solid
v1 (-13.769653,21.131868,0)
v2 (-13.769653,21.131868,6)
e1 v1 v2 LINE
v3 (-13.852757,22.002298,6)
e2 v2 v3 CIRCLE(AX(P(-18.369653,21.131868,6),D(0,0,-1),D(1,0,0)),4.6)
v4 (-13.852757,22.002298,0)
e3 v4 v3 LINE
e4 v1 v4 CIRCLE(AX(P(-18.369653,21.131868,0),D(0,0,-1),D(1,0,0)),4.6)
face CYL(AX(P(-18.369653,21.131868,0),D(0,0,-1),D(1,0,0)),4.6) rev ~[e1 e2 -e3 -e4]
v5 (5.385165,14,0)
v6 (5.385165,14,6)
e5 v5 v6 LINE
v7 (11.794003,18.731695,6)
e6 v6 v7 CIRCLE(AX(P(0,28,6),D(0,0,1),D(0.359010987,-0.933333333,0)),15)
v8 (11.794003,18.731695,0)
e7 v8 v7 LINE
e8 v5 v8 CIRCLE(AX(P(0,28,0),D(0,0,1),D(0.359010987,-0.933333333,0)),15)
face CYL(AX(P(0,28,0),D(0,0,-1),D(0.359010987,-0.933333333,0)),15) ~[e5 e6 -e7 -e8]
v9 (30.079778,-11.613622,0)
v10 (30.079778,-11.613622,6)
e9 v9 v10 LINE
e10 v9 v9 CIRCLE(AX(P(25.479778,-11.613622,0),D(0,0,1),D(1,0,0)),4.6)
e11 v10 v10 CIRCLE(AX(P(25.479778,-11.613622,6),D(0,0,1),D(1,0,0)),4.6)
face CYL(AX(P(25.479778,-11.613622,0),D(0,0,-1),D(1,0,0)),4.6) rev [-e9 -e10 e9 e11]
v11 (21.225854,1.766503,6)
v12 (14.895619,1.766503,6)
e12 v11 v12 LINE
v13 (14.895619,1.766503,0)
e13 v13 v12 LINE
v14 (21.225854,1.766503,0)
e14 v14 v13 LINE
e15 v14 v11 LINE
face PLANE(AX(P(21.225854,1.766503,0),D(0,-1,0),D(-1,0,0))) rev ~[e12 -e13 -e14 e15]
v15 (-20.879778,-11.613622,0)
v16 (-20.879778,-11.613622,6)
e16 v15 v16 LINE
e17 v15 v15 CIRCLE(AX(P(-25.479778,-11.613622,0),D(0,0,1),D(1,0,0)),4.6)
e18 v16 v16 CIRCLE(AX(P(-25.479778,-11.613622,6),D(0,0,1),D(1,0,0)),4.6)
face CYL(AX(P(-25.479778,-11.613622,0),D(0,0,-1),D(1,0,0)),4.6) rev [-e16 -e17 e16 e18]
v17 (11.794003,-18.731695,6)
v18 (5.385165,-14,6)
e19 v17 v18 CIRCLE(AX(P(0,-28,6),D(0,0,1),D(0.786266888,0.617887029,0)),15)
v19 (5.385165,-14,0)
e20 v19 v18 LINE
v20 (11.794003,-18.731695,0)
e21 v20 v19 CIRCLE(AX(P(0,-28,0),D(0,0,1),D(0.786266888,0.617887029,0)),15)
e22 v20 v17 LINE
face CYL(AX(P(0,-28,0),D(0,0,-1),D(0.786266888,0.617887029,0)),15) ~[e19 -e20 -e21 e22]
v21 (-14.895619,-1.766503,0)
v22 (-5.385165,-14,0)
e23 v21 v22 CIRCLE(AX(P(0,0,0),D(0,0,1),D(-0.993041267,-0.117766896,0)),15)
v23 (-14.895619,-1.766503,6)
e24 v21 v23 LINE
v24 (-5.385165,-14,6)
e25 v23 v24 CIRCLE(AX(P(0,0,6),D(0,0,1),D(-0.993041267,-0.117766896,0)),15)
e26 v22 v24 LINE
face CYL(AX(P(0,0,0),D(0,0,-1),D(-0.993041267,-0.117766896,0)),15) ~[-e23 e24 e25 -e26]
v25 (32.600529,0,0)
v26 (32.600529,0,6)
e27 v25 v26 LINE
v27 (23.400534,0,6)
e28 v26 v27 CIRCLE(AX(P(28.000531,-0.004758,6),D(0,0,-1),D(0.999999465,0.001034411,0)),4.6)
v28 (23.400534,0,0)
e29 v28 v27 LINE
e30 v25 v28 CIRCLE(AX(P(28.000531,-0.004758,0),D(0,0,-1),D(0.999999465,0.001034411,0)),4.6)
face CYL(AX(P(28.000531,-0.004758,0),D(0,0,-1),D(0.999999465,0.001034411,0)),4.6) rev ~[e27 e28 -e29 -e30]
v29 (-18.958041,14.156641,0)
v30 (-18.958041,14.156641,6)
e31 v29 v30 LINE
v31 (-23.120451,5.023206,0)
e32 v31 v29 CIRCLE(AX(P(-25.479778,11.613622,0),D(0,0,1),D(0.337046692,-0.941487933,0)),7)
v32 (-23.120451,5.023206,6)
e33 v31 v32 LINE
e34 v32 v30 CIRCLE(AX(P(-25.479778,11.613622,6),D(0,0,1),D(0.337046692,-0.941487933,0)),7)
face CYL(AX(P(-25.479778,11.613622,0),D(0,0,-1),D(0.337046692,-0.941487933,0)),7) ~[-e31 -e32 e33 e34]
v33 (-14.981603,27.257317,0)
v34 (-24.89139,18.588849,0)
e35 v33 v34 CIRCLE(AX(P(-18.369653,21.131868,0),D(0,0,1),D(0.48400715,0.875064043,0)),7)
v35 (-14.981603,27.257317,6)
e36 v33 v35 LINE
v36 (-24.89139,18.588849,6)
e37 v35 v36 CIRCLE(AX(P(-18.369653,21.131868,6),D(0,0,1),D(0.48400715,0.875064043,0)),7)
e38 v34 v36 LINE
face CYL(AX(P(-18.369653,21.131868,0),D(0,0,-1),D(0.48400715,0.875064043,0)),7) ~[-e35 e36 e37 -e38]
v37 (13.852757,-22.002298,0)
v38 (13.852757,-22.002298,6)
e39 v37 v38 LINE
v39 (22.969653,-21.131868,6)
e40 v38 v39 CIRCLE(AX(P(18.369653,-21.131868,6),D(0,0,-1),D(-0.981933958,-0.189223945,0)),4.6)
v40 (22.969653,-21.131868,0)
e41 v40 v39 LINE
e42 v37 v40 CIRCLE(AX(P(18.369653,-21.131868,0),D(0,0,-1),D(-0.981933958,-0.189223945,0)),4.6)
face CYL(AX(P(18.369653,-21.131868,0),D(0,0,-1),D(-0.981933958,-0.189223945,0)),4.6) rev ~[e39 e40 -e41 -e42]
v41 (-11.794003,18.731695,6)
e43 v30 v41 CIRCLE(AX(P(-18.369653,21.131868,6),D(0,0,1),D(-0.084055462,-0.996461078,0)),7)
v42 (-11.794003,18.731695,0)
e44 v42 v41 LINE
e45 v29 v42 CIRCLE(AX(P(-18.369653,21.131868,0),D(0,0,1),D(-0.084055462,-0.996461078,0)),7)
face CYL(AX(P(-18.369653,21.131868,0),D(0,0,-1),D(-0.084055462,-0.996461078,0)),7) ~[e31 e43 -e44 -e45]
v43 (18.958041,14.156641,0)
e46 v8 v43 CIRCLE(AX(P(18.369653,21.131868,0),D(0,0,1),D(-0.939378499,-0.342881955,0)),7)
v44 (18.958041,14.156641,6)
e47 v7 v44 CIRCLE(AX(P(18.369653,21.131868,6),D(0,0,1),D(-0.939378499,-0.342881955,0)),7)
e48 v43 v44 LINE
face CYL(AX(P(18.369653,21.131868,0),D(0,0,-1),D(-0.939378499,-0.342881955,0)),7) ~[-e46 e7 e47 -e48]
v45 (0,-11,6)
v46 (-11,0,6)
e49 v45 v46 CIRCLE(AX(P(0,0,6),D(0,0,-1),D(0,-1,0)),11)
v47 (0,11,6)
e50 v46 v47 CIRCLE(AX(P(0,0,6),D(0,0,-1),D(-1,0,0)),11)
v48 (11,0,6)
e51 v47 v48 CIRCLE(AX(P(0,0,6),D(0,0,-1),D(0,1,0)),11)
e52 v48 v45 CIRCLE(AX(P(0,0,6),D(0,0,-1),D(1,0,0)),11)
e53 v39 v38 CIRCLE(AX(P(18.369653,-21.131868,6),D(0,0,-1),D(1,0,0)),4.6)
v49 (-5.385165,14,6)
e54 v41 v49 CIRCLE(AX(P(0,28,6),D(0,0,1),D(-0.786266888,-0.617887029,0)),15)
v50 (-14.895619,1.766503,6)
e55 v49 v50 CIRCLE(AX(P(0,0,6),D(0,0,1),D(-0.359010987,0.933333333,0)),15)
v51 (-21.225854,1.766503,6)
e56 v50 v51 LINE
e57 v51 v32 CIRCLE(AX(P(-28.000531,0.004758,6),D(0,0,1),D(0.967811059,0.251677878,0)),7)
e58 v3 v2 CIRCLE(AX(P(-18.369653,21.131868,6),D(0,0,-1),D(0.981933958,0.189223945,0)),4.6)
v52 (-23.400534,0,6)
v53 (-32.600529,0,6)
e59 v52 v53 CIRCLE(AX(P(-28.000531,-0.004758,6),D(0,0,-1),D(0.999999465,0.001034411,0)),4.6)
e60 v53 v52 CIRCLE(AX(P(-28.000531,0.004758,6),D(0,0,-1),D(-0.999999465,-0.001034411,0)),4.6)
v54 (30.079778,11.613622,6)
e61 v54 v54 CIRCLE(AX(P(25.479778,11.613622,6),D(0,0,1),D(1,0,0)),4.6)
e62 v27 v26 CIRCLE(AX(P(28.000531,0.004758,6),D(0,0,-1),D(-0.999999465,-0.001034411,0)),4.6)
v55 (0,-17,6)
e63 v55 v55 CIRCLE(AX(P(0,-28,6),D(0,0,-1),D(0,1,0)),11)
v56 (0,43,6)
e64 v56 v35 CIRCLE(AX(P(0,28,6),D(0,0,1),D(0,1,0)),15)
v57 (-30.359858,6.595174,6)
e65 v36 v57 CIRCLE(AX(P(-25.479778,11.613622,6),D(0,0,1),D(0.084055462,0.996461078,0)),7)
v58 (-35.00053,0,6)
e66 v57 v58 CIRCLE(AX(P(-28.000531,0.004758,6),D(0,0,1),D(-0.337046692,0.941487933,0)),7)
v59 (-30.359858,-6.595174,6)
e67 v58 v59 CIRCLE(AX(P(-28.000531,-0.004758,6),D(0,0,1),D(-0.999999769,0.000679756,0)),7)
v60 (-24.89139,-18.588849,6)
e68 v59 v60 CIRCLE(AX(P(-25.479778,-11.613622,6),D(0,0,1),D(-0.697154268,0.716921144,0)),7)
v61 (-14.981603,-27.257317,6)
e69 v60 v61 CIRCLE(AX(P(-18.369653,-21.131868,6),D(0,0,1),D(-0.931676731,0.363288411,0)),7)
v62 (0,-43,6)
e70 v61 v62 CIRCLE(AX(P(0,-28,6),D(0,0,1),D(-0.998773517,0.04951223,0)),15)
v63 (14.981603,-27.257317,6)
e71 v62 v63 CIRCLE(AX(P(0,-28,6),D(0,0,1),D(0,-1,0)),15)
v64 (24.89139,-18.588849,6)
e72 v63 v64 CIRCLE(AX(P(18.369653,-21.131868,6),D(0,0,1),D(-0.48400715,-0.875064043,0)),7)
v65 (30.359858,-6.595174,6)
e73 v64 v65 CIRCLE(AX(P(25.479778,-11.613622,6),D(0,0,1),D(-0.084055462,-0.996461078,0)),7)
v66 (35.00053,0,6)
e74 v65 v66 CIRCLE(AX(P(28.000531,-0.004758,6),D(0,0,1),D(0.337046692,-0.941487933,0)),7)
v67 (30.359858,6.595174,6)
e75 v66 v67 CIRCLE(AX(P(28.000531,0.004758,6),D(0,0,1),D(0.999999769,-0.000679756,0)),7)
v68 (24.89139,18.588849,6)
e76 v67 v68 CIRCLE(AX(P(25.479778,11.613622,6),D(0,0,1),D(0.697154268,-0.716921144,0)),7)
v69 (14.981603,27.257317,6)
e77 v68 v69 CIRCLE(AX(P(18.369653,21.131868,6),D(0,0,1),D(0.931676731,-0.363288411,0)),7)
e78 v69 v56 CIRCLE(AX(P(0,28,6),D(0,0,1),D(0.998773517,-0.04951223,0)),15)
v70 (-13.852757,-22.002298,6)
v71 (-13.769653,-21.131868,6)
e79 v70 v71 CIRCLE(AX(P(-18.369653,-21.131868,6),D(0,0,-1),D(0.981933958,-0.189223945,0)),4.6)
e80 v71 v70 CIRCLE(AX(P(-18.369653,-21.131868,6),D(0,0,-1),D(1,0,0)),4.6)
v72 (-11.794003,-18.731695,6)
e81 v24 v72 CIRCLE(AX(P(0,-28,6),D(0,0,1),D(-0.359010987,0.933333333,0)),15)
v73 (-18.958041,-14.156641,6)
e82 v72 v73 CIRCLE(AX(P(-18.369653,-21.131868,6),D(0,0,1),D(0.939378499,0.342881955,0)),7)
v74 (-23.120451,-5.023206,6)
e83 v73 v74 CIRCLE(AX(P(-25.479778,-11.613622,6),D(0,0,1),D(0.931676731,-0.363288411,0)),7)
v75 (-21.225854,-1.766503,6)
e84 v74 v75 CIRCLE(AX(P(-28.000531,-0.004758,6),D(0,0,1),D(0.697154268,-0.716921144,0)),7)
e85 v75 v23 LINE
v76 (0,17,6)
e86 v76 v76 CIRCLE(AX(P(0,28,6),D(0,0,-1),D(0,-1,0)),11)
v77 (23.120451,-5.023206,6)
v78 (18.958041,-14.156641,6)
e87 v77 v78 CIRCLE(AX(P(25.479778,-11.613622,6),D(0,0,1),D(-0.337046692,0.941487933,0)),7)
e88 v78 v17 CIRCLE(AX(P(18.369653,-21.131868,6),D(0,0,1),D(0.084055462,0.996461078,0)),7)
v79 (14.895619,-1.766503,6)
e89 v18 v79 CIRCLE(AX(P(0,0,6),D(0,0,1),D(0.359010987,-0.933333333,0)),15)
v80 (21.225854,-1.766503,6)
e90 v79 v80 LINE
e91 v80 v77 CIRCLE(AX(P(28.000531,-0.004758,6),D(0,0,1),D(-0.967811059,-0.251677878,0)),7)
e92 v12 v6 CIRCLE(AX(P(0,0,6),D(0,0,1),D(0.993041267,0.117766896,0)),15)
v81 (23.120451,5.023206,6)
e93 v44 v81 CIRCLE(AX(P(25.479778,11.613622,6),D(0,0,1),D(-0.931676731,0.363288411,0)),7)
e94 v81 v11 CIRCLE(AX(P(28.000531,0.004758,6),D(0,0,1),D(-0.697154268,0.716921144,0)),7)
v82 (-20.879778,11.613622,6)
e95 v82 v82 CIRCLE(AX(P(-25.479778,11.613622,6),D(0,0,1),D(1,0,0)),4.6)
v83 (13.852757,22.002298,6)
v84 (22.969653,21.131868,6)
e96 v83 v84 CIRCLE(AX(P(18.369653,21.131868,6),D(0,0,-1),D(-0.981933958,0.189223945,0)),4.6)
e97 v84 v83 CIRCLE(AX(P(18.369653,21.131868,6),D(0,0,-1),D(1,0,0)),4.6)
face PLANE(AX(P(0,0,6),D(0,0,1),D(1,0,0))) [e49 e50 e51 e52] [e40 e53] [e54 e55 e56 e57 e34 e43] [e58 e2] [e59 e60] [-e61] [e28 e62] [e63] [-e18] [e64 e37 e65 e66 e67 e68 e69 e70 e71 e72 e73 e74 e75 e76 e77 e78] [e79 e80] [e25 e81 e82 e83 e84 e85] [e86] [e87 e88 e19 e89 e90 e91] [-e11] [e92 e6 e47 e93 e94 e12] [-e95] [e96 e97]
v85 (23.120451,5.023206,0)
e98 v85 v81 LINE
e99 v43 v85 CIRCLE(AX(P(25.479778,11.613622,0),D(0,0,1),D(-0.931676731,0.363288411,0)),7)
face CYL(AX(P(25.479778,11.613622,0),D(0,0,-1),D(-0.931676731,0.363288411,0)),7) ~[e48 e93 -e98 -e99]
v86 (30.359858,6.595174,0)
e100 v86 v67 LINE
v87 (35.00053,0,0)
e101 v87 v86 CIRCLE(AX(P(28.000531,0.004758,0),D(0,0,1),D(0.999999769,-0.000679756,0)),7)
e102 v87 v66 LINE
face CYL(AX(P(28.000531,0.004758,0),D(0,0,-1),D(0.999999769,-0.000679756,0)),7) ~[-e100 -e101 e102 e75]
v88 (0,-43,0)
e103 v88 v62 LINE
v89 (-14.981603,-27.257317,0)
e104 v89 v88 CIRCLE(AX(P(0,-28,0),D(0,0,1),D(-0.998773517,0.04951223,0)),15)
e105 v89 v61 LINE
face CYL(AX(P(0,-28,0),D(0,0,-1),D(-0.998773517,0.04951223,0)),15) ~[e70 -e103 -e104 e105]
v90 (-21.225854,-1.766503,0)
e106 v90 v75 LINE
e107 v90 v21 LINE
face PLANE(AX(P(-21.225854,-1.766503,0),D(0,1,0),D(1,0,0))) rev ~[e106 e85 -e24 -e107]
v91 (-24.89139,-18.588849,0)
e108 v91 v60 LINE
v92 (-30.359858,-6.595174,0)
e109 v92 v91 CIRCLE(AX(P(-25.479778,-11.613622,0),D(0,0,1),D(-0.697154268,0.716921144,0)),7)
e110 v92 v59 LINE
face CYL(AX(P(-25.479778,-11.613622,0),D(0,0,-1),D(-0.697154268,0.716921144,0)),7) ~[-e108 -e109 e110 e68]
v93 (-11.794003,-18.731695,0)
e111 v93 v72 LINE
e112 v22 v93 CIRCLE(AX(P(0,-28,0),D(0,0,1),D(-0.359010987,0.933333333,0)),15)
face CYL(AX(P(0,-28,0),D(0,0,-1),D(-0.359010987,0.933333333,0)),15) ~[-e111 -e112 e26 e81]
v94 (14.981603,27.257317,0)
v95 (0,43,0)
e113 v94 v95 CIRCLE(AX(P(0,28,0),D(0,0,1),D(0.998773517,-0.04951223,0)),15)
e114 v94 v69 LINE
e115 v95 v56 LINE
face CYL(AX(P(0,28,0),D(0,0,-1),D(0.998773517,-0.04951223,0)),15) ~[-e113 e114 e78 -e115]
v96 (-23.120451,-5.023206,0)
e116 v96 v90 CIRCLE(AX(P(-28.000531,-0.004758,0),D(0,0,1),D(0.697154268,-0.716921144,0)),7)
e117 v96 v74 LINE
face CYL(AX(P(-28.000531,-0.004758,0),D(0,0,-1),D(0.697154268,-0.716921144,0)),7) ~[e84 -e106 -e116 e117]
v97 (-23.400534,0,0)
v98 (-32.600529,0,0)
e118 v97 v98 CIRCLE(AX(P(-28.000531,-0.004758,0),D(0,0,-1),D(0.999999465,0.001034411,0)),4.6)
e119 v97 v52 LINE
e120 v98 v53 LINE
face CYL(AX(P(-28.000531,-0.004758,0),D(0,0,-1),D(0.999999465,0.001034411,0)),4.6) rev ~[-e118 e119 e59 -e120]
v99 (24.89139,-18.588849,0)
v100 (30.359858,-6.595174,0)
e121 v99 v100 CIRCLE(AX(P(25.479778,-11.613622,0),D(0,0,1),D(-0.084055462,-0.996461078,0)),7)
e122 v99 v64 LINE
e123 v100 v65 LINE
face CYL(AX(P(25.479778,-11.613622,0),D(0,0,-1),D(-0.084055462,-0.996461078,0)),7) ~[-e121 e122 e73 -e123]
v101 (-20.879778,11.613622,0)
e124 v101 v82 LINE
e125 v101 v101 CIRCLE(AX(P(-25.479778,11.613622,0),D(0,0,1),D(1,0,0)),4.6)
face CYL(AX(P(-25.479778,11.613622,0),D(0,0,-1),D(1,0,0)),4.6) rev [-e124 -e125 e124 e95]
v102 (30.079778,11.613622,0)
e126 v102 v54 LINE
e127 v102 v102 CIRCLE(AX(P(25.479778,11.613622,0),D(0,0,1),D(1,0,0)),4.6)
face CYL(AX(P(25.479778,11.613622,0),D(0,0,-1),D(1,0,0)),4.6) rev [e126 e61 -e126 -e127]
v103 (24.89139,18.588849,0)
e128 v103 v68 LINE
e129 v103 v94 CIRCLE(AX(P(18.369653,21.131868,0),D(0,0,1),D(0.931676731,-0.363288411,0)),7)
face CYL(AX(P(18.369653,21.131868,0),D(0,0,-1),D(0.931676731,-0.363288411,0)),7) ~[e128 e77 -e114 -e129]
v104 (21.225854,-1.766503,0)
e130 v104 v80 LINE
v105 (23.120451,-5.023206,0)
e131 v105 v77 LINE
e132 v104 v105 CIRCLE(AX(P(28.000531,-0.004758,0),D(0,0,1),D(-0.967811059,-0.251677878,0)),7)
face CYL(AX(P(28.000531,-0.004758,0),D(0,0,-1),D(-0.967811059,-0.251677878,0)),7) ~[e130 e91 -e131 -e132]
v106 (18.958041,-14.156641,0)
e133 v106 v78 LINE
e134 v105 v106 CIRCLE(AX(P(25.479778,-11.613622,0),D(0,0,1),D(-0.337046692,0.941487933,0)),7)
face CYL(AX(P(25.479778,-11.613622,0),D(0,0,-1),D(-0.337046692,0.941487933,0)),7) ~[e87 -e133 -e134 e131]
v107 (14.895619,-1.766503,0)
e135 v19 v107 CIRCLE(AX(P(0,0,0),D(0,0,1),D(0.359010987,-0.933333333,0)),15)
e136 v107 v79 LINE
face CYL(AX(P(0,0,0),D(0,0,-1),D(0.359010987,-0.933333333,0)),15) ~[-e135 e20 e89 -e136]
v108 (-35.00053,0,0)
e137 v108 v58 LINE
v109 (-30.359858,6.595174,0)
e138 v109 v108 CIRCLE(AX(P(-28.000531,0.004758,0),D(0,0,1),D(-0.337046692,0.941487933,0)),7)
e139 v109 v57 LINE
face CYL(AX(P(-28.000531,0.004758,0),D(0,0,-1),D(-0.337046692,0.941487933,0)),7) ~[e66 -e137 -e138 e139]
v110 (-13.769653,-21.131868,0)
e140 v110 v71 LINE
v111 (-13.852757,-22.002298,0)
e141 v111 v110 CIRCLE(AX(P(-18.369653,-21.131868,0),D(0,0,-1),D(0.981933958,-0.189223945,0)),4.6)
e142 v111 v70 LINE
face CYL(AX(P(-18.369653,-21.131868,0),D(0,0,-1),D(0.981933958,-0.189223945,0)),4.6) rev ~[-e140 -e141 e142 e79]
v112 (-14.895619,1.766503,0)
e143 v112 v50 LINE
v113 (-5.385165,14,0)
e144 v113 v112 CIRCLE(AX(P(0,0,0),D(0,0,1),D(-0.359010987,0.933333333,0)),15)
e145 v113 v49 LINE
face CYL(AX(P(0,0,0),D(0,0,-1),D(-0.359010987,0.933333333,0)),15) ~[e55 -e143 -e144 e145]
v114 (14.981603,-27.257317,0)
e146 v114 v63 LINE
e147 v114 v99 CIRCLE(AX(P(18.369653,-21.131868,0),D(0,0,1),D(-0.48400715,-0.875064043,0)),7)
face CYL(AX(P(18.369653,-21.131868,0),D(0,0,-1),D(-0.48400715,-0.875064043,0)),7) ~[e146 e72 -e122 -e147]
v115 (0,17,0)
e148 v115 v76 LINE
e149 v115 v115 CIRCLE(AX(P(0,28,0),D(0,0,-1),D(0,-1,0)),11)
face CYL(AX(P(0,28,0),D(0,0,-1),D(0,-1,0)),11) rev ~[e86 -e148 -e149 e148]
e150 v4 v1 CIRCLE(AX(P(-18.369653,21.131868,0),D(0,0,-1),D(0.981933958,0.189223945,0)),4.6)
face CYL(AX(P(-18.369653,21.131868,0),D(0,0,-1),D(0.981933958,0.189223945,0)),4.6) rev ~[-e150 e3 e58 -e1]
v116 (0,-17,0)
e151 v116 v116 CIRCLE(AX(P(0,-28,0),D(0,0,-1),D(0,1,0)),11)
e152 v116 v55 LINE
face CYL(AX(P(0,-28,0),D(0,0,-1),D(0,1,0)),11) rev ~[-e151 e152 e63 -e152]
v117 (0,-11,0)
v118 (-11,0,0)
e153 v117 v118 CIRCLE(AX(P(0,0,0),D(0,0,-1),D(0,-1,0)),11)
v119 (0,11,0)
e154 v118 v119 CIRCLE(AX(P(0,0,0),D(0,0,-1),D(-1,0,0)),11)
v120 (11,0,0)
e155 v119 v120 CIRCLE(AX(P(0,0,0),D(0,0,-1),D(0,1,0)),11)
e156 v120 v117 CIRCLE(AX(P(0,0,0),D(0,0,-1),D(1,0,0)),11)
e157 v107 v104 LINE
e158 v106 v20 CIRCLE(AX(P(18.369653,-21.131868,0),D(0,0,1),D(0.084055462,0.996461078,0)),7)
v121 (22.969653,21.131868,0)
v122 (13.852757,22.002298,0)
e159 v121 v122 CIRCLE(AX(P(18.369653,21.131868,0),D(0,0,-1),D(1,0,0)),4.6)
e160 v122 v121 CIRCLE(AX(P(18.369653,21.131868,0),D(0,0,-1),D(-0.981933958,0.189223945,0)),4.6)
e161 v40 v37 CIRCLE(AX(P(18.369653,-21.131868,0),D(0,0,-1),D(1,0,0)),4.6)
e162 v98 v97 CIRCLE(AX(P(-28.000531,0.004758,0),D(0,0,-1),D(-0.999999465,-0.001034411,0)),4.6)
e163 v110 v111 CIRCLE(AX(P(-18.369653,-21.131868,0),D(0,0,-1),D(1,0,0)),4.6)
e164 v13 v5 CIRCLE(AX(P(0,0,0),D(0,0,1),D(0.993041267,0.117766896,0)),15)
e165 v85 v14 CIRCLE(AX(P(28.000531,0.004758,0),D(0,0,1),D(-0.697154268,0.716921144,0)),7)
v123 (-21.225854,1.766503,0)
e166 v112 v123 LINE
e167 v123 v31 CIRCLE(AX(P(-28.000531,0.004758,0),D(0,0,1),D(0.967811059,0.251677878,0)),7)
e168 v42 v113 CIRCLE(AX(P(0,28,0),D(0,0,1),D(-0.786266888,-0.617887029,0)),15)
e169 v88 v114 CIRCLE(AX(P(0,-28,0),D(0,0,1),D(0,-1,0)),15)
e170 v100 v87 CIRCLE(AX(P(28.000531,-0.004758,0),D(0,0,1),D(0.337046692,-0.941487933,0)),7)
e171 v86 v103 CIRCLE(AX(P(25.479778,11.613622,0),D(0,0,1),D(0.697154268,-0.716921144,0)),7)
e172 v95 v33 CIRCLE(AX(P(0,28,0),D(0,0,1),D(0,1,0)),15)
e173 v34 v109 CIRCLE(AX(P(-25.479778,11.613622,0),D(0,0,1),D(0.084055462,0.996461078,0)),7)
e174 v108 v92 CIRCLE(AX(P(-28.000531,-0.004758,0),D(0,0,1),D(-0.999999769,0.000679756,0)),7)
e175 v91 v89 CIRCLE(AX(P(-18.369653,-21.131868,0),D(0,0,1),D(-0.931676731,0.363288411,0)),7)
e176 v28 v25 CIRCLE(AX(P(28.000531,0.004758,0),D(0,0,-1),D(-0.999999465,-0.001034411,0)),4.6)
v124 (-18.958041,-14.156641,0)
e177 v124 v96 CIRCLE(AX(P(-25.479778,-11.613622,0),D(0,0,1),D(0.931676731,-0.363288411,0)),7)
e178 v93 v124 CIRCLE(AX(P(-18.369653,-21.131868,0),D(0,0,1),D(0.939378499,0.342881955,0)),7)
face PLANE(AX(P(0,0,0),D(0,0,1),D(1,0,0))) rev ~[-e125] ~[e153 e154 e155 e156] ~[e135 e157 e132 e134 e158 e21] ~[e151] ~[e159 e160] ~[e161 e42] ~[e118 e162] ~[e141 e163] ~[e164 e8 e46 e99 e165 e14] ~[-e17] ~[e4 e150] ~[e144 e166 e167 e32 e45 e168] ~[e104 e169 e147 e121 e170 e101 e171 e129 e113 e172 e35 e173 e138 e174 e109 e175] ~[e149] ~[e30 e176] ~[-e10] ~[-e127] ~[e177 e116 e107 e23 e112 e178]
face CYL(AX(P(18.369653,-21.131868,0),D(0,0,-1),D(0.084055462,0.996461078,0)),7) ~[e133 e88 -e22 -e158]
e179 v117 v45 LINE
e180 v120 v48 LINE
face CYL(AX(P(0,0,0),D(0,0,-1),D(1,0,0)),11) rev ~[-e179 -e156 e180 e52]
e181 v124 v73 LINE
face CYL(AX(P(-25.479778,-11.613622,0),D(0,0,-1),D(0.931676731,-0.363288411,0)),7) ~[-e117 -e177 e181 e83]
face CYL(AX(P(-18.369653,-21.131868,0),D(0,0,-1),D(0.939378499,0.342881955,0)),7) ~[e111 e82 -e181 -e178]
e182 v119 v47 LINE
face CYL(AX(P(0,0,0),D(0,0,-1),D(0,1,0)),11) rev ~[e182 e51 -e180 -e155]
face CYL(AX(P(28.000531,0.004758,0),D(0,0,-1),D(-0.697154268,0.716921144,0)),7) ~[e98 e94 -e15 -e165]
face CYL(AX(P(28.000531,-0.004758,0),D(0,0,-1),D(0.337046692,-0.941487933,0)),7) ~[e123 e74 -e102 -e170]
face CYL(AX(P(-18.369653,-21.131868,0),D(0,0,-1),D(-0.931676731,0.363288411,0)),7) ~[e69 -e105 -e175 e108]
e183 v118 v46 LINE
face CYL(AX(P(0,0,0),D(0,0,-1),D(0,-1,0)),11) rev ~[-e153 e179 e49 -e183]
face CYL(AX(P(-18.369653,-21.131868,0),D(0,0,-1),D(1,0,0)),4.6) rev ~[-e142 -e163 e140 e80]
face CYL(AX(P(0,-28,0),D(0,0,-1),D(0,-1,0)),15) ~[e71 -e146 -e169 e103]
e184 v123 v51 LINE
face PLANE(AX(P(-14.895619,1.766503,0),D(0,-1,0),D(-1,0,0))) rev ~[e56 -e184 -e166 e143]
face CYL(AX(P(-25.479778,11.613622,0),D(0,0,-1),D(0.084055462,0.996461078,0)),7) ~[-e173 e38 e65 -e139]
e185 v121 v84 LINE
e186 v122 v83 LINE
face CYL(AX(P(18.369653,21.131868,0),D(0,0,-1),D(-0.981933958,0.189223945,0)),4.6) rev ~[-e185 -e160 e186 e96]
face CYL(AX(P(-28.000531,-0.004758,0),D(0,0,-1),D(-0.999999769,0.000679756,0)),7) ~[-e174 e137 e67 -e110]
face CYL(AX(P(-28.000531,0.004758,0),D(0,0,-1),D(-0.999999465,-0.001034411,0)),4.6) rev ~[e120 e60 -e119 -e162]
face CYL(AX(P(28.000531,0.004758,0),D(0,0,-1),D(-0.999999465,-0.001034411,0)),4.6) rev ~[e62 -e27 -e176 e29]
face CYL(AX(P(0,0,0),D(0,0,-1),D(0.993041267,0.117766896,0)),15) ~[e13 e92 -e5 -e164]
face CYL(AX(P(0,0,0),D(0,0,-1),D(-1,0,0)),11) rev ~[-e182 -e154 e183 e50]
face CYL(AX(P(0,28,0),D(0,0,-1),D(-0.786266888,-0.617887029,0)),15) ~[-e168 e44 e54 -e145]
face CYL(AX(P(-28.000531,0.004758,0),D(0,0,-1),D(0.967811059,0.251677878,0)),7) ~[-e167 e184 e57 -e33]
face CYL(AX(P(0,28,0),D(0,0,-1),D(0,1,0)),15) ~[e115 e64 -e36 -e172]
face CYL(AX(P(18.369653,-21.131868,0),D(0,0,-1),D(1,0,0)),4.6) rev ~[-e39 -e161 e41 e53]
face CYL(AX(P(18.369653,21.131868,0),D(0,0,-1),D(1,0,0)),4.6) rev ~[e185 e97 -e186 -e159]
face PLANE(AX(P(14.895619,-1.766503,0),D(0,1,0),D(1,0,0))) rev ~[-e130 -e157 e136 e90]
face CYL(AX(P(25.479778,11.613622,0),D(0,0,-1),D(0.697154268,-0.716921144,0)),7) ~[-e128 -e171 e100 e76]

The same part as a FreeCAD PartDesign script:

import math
import FreeCAD as App
import Part
import Sketcher

V = App.Vector

doc = App.newDocument("Part")
body = doc.addObject("PartDesign::Body", "Body")

# Sketch on XY plane
sketch1 = body.newObject("Sketcher::SketchObject", "Sketch")
sketch1.AttachmentSupport = (doc.getObject("XY_Plane"), [""])
sketch1.MapMode = "FlatFace"
sketch1.addGeometry(Part.ArcOfCircle(Part.Circle(V(25.479778, 11.613622, 0), V(0, 0, 1), 7), math.radians(-45.800866), math.radians(94.821712)), False)
sketch1.addGeometry(Part.ArcOfCircle(Part.Circle(V(18.369653, 21.131868, 0), V(0, 0, 1), 7), math.radians(-21.302286), math.radians(118.947444)), False)
sketch1.addGeometry(Part.ArcOfCircle(Part.Circle(V(0, 28, 0), V(0, 0, 1), 15), math.radians(-2.838002), math.radians(90)), False)
sketch1.addGeometry(Part.ArcOfCircle(Part.Circle(V(0, 28, 0), V(0, 0, 1), 15), math.radians(90), math.radians(182.838002)), False)
sketch1.addGeometry(Part.ArcOfCircle(Part.Circle(V(-18.369653, 21.131868, 0), V(0, 0, 1), 7), math.radians(61.052556), math.radians(201.302286)), False)
sketch1.addGeometry(Part.ArcOfCircle(Part.Circle(V(-25.479778, 11.613622, 0), V(0, 0, 1), 7), math.radians(85.178288), math.radians(225.800866)), False)
sketch1.addGeometry(Part.ArcOfCircle(Part.Circle(V(-28.000531, 0.004758, 0), V(0, 0, 1), 7), math.radians(109.697044), math.radians(180.038947)), False)
sketch1.addGeometry(Part.ArcOfCircle(Part.Circle(V(-28.000531, -0.004758, 0), V(0, 0, 1), 7), math.radians(179.961053), math.radians(250.302956)), False)
sketch1.addGeometry(Part.ArcOfCircle(Part.Circle(V(-25.479778, -11.613622, 0), V(0, 0, 1), 7), math.radians(134.199134), math.radians(274.821712)), False)
sketch1.addGeometry(Part.ArcOfCircle(Part.Circle(V(-18.369653, -21.131868, 0), V(0, 0, 1), 7), math.radians(158.697714), math.radians(298.947444)), False)
sketch1.addGeometry(Part.ArcOfCircle(Part.Circle(V(0, -28, 0), V(0, 0, 1), 15), math.radians(177.161998), math.radians(270)), False)
sketch1.addGeometry(Part.ArcOfCircle(Part.Circle(V(0, -28, 0), V(0, 0, 1), 15), math.radians(-90), math.radians(2.838002)), False)
sketch1.addGeometry(Part.ArcOfCircle(Part.Circle(V(18.369653, -21.131868, 0), V(0, 0, 1), 7), math.radians(-118.947444), math.radians(21.302286)), False)
sketch1.addGeometry(Part.ArcOfCircle(Part.Circle(V(25.479778, -11.613622, 0), V(0, 0, 1), 7), math.radians(-94.821712), math.radians(45.800866)), False)
sketch1.addGeometry(Part.ArcOfCircle(Part.Circle(V(28.000531, -0.004758, 0), V(0, 0, 1), 7), math.radians(-70.302956), math.radians(0.038947)), False)
sketch1.addGeometry(Part.ArcOfCircle(Part.Circle(V(28.000531, 0.004758, 0), V(0, 0, 1), 7), math.radians(-0.038947), math.radians(70.302956)), False)
sketch1.addGeometry(Part.ArcOfCircle(Part.Circle(V(-18.369653, -21.131868, 0), V(0, 0, 1), 4.6), math.radians(-10.907498), math.radians(0)), False)
sketch1.addGeometry(Part.ArcOfCircle(Part.Circle(V(-18.369653, -21.131868, 0), V(0, 0, 1), 4.6), math.radians(0), math.radians(349.092502)), False)
sketch1.addGeometry(Part.Circle(V(-25.479778, -11.613622, 0), V(0, 0, 1), 4.6), False)
sketch1.addGeometry(Part.ArcOfCircle(Part.Circle(V(0, -28, 0), V(0, 0, 1), 15), math.radians(111.03947), math.radians(141.838002)), False)
sketch1.addGeometry(Part.ArcOfCircle(Part.Circle(V(-18.369653, -21.131868, 0), V(0, 0, 1), 7), math.radians(20.052556), math.radians(94.821712)), False)
sketch1.addGeometry(Part.ArcOfCircle(Part.Circle(V(-25.479778, -11.613622, 0), V(0, 0, 1), 7), math.radians(-21.302287), math.radians(70.302956)), False)
sketch1.addGeometry(Part.ArcOfCircle(Part.Circle(V(-28.000531, -0.004758, 0), V(0, 0, 1), 7), math.radians(-45.800866), math.radians(-14.576823)), False)
sketch1.addGeometry(Part.LineSegment(V(-21.225854, -1.766503, 0), V(-14.895619, -1.766503, 0)), False)
sketch1.addGeometry(Part.ArcOfCircle(Part.Circle(V(0, 0, 0), V(0, 0, 1), 15), math.radians(-173.236759), math.radians(-111.03947)), False)
sketch1.addGeometry(Part.Circle(V(0, -28, 0), V(0, 0, 1), 11), False)
sketch1.addGeometry(Part.ArcOfCircle(Part.Circle(V(18.369653, -21.131868, 0), V(0, 0, 1), 4.6), math.radians(-169.092502), math.radians(0)), False)
sketch1.addGeometry(Part.ArcOfCircle(Part.Circle(V(18.369653, -21.131868, 0), V(0, 0, 1), 4.6), math.radians(0), math.radians(190.907498)), False)
sketch1.addGeometry(Part.ArcOfCircle(Part.Circle(V(28.000531, -0.004758, 0), V(0, 0, 1), 7), math.radians(-165.423177), math.radians(-134.199134)), False)
sketch1.addGeometry(Part.ArcOfCircle(Part.Circle(V(25.479778, -11.613622, 0), V(0, 0, 1), 7), math.radians(109.697044), math.radians(201.302287)), False)
sketch1.addGeometry(Part.ArcOfCircle(Part.Circle(V(18.369653, -21.131868, 0), V(0, 0, 1), 7), math.radians(85.178288), math.radians(159.947444)), False)
sketch1.addGeometry(Part.ArcOfCircle(Part.Circle(V(0, -28, 0), V(0, 0, 1), 15), math.radians(38.161998), math.radians(68.96053)), False)
sketch1.addGeometry(Part.ArcOfCircle(Part.Circle(V(0, 0, 0), V(0, 0, 1), 15), math.radians(-68.96053), math.radians(-6.763241)), False)
sketch1.addGeometry(Part.LineSegment(V(14.895619, -1.766503, 0), V(21.225854, -1.766503, 0)), False)
sketch1.addGeometry(Part.Circle(V(25.479778, -11.613622, 0), V(0, 0, 1), 4.6), False)
sketch1.addGeometry(Part.ArcOfCircle(Part.Circle(V(-28.000531, 0.004758, 0), V(0, 0, 1), 4.6), math.radians(-0.059267), math.radians(180.059267)), False)
sketch1.addGeometry(Part.ArcOfCircle(Part.Circle(V(-28.000531, -0.004758, 0), V(0, 0, 1), 4.6), math.radians(179.940733), math.radians(360.059267)), False)
sketch1.addGeometry(Part.Circle(V(-25.479778, 11.613622, 0), V(0, 0, 1), 4.6), False)
sketch1.addGeometry(Part.ArcOfCircle(Part.Circle(V(-18.369653, 21.131868, 0), V(0, 0, 1), 7), math.radians(-94.821712), math.radians(-20.052556)), False)
sketch1.addGeometry(Part.ArcOfCircle(Part.Circle(V(0, 28, 0), V(0, 0, 1), 15), math.radians(-141.838002), math.radians(-111.03947)), False)
sketch1.addGeometry(Part.ArcOfCircle(Part.Circle(V(0, 0, 0), V(0, 0, 1), 15), math.radians(111.03947), math.radians(173.236759)), False)
sketch1.addGeometry(Part.LineSegment(V(-14.895619, 1.766503, 0), V(-21.225854, 1.766503, 0)), False)
sketch1.addGeometry(Part.ArcOfCircle(Part.Circle(V(-28.000531, 0.004758, 0), V(0, 0, 1), 7), math.radians(14.576823), math.radians(45.800866)), False)
sketch1.addGeometry(Part.ArcOfCircle(Part.Circle(V(-25.479778, 11.613622, 0), V(0, 0, 1), 7), math.radians(-70.302956), math.radians(21.302287)), False)
sketch1.addGeometry(Part.ArcOfCircle(Part.Circle(V(-18.369653, 21.131868, 0), V(0, 0, 1), 4.6), math.radians(10.907498), math.radians(360)), False)
sketch1.addGeometry(Part.ArcOfCircle(Part.Circle(V(-18.369653, 21.131868, 0), V(0, 0, 1), 4.6), math.radians(0), math.radians(10.907498)), False)
sketch1.addGeometry(Part.ArcOfCircle(Part.Circle(V(0, 0, 0), V(0, 0, 1), 11), math.radians(90), math.radians(180)), False)
sketch1.addGeometry(Part.ArcOfCircle(Part.Circle(V(0, 0, 0), V(0, 0, 1), 11), math.radians(0), math.radians(90)), False)
sketch1.addGeometry(Part.ArcOfCircle(Part.Circle(V(0, 0, 0), V(0, 0, 1), 11), math.radians(-90), math.radians(0)), False)
sketch1.addGeometry(Part.ArcOfCircle(Part.Circle(V(0, 0, 0), V(0, 0, 1), 11), math.radians(180), math.radians(270)), False)
sketch1.addGeometry(Part.ArcOfCircle(Part.Circle(V(28.000531, 0.004758, 0), V(0, 0, 1), 7), math.radians(134.199134), math.radians(165.423177)), False)
sketch1.addGeometry(Part.LineSegment(V(21.225854, 1.766503, 0), V(14.895619, 1.766503, 0)), False)
sketch1.addGeometry(Part.ArcOfCircle(Part.Circle(V(0, 0, 0), V(0, 0, 1), 15), math.radians(6.763241), math.radians(68.96053)), False)
sketch1.addGeometry(Part.ArcOfCircle(Part.Circle(V(0, 28, 0), V(0, 0, 1), 15), math.radians(-68.96053), math.radians(-38.161998)), False)
sketch1.addGeometry(Part.ArcOfCircle(Part.Circle(V(18.369653, 21.131868, 0), V(0, 0, 1), 7), math.radians(-159.947444), math.radians(-85.178288)), False)
sketch1.addGeometry(Part.ArcOfCircle(Part.Circle(V(25.479778, 11.613622, 0), V(0, 0, 1), 7), math.radians(158.697713), math.radians(250.302956)), False)
sketch1.addGeometry(Part.ArcOfCircle(Part.Circle(V(28.000531, -0.004758, 0), V(0, 0, 1), 4.6), math.radians(179.940733), math.radians(360.059267)), False)
sketch1.addGeometry(Part.ArcOfCircle(Part.Circle(V(28.000531, 0.004758, 0), V(0, 0, 1), 4.6), math.radians(-0.059267), math.radians(180.059267)), False)
sketch1.addGeometry(Part.Circle(V(25.479778, 11.613622, 0), V(0, 0, 1), 4.6), False)
sketch1.addGeometry(Part.Circle(V(0, 28, 0), V(0, 0, 1), 11), False)
sketch1.addGeometry(Part.ArcOfCircle(Part.Circle(V(18.369653, 21.131868, 0), V(0, 0, 1), 4.6), math.radians(169.092502), math.radians(360)), False)
sketch1.addGeometry(Part.ArcOfCircle(Part.Circle(V(18.369653, 21.131868, 0), V(0, 0, 1), 4.6), math.radians(0), math.radians(169.092502)), False)
sketch1.addConstraint(Sketcher.Constraint("Coincident", 0, 2, 1, 1))
sketch1.addConstraint(Sketcher.Constraint("Coincident", 1, 2, 2, 1))
sketch1.addConstraint(Sketcher.Constraint("Tangent", 2, 2, 3, 1))
sketch1.addConstraint(Sketcher.Constraint("Coincident", 3, 2, 4, 1))
sketch1.addConstraint(Sketcher.Constraint("Coincident", 4, 2, 5, 1))
sketch1.addConstraint(Sketcher.Constraint("Coincident", 5, 2, 6, 1))
sketch1.addConstraint(Sketcher.Constraint("Coincident", 6, 2, 7, 1))
sketch1.addConstraint(Sketcher.Constraint("Coincident", 7, 2, 8, 1))
sketch1.addConstraint(Sketcher.Constraint("Coincident", 8, 2, 9, 1))
sketch1.addConstraint(Sketcher.Constraint("Coincident", 9, 2, 10, 1))
sketch1.addConstraint(Sketcher.Constraint("Tangent", 10, 2, 11, 1))
sketch1.addConstraint(Sketcher.Constraint("Coincident", 11, 2, 12, 1))
sketch1.addConstraint(Sketcher.Constraint("Coincident", 12, 2, 13, 1))
sketch1.addConstraint(Sketcher.Constraint("Coincident", 13, 2, 14, 1))
sketch1.addConstraint(Sketcher.Constraint("Coincident", 14, 2, 15, 1))
sketch1.addConstraint(Sketcher.Constraint("Coincident", 15, 2, 0, 1))
sketch1.addConstraint(Sketcher.Constraint("Tangent", 16, 1, 17, 2))
sketch1.addConstraint(Sketcher.Constraint("Coincident", 17, 1, 16, 2))
sketch1.addConstraint(Sketcher.Constraint("Coincident", 19, 2, 20, 1))
sketch1.addConstraint(Sketcher.Constraint("Coincident", 20, 2, 21, 1))
sketch1.addConstraint(Sketcher.Constraint("Coincident", 21, 2, 22, 1))
sketch1.addConstraint(Sketcher.Constraint("Coincident", 22, 2, 23, 1))
sketch1.addConstraint(Sketcher.Constraint("Coincident", 23, 2, 24, 1))
sketch1.addConstraint(Sketcher.Constraint("Coincident", 24, 2, 19, 1))
sketch1.addConstraint(Sketcher.Constraint("Tangent", 26, 1, 27, 2))
sketch1.addConstraint(Sketcher.Constraint("Coincident", 27, 1, 26, 2))
sketch1.addConstraint(Sketcher.Constraint("Coincident", 28, 2, 29, 1))
sketch1.addConstraint(Sketcher.Constraint("Coincident", 29, 2, 30, 1))
sketch1.addConstraint(Sketcher.Constraint("Coincident", 30, 2, 31, 1))
sketch1.addConstraint(Sketcher.Constraint("Coincident", 31, 2, 32, 1))
sketch1.addConstraint(Sketcher.Constraint("Coincident", 32, 2, 33, 1))
sketch1.addConstraint(Sketcher.Constraint("Coincident", 33, 2, 28, 1))
sketch1.addConstraint(Sketcher.Constraint("Coincident", 35, 1, 36, 2))
sketch1.addConstraint(Sketcher.Constraint("Coincident", 36, 1, 35, 2))
sketch1.addConstraint(Sketcher.Constraint("Coincident", 38, 2, 39, 1))
sketch1.addConstraint(Sketcher.Constraint("Coincident", 39, 2, 40, 1))
sketch1.addConstraint(Sketcher.Constraint("Coincident", 40, 2, 41, 1))
sketch1.addConstraint(Sketcher.Constraint("Coincident", 41, 2, 42, 1))
sketch1.addConstraint(Sketcher.Constraint("Coincident", 42, 2, 43, 1))
sketch1.addConstraint(Sketcher.Constraint("Coincident", 43, 2, 38, 1))
sketch1.addConstraint(Sketcher.Constraint("Tangent", 44, 1, 45, 2))
sketch1.addConstraint(Sketcher.Constraint("Coincident", 45, 1, 44, 2))
sketch1.addConstraint(Sketcher.Constraint("Tangent", 46, 1, 47, 2))
sketch1.addConstraint(Sketcher.Constraint("Tangent", 47, 1, 48, 2))
sketch1.addConstraint(Sketcher.Constraint("Tangent", 48, 1, 49, 2))
sketch1.addConstraint(Sketcher.Constraint("Tangent", 49, 1, 46, 2))
sketch1.addConstraint(Sketcher.Constraint("Coincident", 50, 2, 51, 1))
sketch1.addConstraint(Sketcher.Constraint("Coincident", 51, 2, 52, 1))
sketch1.addConstraint(Sketcher.Constraint("Coincident", 52, 2, 53, 1))
sketch1.addConstraint(Sketcher.Constraint("Coincident", 53, 2, 54, 1))
sketch1.addConstraint(Sketcher.Constraint("Coincident", 54, 2, 55, 1))
sketch1.addConstraint(Sketcher.Constraint("Coincident", 55, 2, 50, 1))
sketch1.addConstraint(Sketcher.Constraint("Coincident", 56, 1, 57, 2))
sketch1.addConstraint(Sketcher.Constraint("Coincident", 57, 1, 56, 2))
sketch1.addConstraint(Sketcher.Constraint("Tangent", 60, 1, 61, 2))
sketch1.addConstraint(Sketcher.Constraint("Coincident", 61, 1, 60, 2))
sketch1.addConstraint(Sketcher.Constraint("Horizontal", 23))
sketch1.addConstraint(Sketcher.Constraint("Horizontal", 33))
sketch1.addConstraint(Sketcher.Constraint("Horizontal", 41))
sketch1.addConstraint(Sketcher.Constraint("Horizontal", 51))
sketch1.addConstraint(Sketcher.Constraint("Coincident", 24, 3, -1, 1))
sketch1.addConstraint(Sketcher.Constraint("Coincident", 32, 3, -1, 1))
sketch1.addConstraint(Sketcher.Constraint("Coincident", 40, 3, -1, 1))
sketch1.addConstraint(Sketcher.Constraint("Coincident", 46, 3, -1, 1))
sketch1.addConstraint(Sketcher.Constraint("Coincident", 52, 3, -1, 1))
sketch1.addConstraint(Sketcher.Constraint("Coincident", 16, 3, 9, 3))
sketch1.addConstraint(Sketcher.Constraint("Coincident", 18, 3, 8, 3))
sketch1.addConstraint(Sketcher.Constraint("Coincident", 19, 3, 10, 3))
sketch1.addConstraint(Sketcher.Constraint("Coincident", 20, 3, 9, 3))
sketch1.addConstraint(Sketcher.Constraint("Coincident", 21, 3, 8, 3))
sketch1.addConstraint(Sketcher.Constraint("Coincident", 22, 3, 7, 3))
sketch1.addConstraint(Sketcher.Constraint("Coincident", 25, 3, 10, 3))
sketch1.addConstraint(Sketcher.Constraint("Coincident", 26, 3, 12, 3))
sketch1.addConstraint(Sketcher.Constraint("Coincident", 28, 3, 14, 3))
sketch1.addConstraint(Sketcher.Constraint("Coincident", 29, 3, 13, 3))
sketch1.addConstraint(Sketcher.Constraint("Coincident", 30, 3, 12, 3))
sketch1.addConstraint(Sketcher.Constraint("Coincident", 31, 3, 10, 3))
sketch1.addConstraint(Sketcher.Constraint("Coincident", 34, 3, 13, 3))
sketch1.addConstraint(Sketcher.Constraint("Coincident", 35, 3, 6, 3))
sketch1.addConstraint(Sketcher.Constraint("Coincident", 36, 3, 7, 3))
sketch1.addConstraint(Sketcher.Constraint("Coincident", 37, 3, 5, 3))
sketch1.addConstraint(Sketcher.Constraint("Coincident", 38, 3, 4, 3))
sketch1.addConstraint(Sketcher.Constraint("Coincident", 39, 3, 2, 3))
sketch1.addConstraint(Sketcher.Constraint("Coincident", 42, 3, 6, 3))
sketch1.addConstraint(Sketcher.Constraint("Coincident", 43, 3, 5, 3))
sketch1.addConstraint(Sketcher.Constraint("Coincident", 44, 3, 4, 3))
sketch1.addConstraint(Sketcher.Constraint("Coincident", 50, 3, 15, 3))
sketch1.addConstraint(Sketcher.Constraint("Coincident", 53, 3, 2, 3))
sketch1.addConstraint(Sketcher.Constraint("Coincident", 54, 3, 1, 3))
sketch1.addConstraint(Sketcher.Constraint("Coincident", 55, 3, 0, 3))
sketch1.addConstraint(Sketcher.Constraint("Coincident", 56, 3, 14, 3))
sketch1.addConstraint(Sketcher.Constraint("Coincident", 57, 3, 15, 3))
sketch1.addConstraint(Sketcher.Constraint("Coincident", 58, 3, 0, 3))
sketch1.addConstraint(Sketcher.Constraint("Coincident", 59, 3, 2, 3))
sketch1.addConstraint(Sketcher.Constraint("Coincident", 60, 3, 1, 3))
sketch1.addConstraint(Sketcher.Constraint("Equal", 0, 1))
sketch1.addConstraint(Sketcher.Constraint("Equal", 2, 3))
sketch1.addConstraint(Sketcher.Constraint("Equal", 1, 4))
sketch1.addConstraint(Sketcher.Constraint("Equal", 4, 5))
sketch1.addConstraint(Sketcher.Constraint("Equal", 5, 6))
sketch1.addConstraint(Sketcher.Constraint("Equal", 6, 7))
sketch1.addConstraint(Sketcher.Constraint("Equal", 7, 8))
sketch1.addConstraint(Sketcher.Constraint("Equal", 8, 9))
sketch1.addConstraint(Sketcher.Constraint("Equal", 3, 10))
sketch1.addConstraint(Sketcher.Constraint("Equal", 10, 11))
sketch1.addConstraint(Sketcher.Constraint("Equal", 9, 12))
sketch1.addConstraint(Sketcher.Constraint("Equal", 12, 13))
sketch1.addConstraint(Sketcher.Constraint("Equal", 13, 14))
sketch1.addConstraint(Sketcher.Constraint("Equal", 14, 15))
sketch1.addConstraint(Sketcher.Constraint("Equal", 17, 18))
sketch1.addConstraint(Sketcher.Constraint("Equal", 11, 19))
sketch1.addConstraint(Sketcher.Constraint("Equal", 15, 20))
sketch1.addConstraint(Sketcher.Constraint("Equal", 20, 21))
sketch1.addConstraint(Sketcher.Constraint("Equal", 21, 22))
sketch1.addConstraint(Sketcher.Constraint("Equal", 19, 24))
sketch1.addConstraint(Sketcher.Constraint("Equal", 18, 26))
sketch1.addConstraint(Sketcher.Constraint("Equal", 22, 28))
sketch1.addConstraint(Sketcher.Constraint("Equal", 28, 29))
sketch1.addConstraint(Sketcher.Constraint("Equal", 29, 30))
sketch1.addConstraint(Sketcher.Constraint("Equal", 24, 31))
sketch1.addConstraint(Sketcher.Constraint("Equal", 31, 32))
sketch1.addConstraint(Sketcher.Constraint("Equal", 27, 34))
sketch1.addConstraint(Sketcher.Constraint("Equal", 34, 35))
sketch1.addConstraint(Sketcher.Constraint("Equal", 35, 36))
sketch1.addConstraint(Sketcher.Constraint("Equal", 36, 37))
sketch1.addConstraint(Sketcher.Constraint("Equal", 30, 38))
sketch1.addConstraint(Sketcher.Constraint("Equal", 32, 39))
sketch1.addConstraint(Sketcher.Constraint("Equal", 39, 40))
sketch1.addConstraint(Sketcher.Constraint("Equal", 38, 42))
sketch1.addConstraint(Sketcher.Constraint("Equal", 42, 43))
sketch1.addConstraint(Sketcher.Constraint("Equal", 37, 44))
sketch1.addConstraint(Sketcher.Constraint("Equal", 25, 46))
sketch1.addConstraint(Sketcher.Constraint("Equal", 46, 47))
sketch1.addConstraint(Sketcher.Constraint("Equal", 43, 50))
sketch1.addConstraint(Sketcher.Constraint("Equal", 40, 52))
sketch1.addConstraint(Sketcher.Constraint("Equal", 52, 53))
sketch1.addConstraint(Sketcher.Constraint("Equal", 50, 54))
sketch1.addConstraint(Sketcher.Constraint("Equal", 54, 55))
sketch1.addConstraint(Sketcher.Constraint("Equal", 45, 56))
sketch1.addConstraint(Sketcher.Constraint("Equal", 56, 57))
sketch1.addConstraint(Sketcher.Constraint("Equal", 57, 58))
sketch1.addConstraint(Sketcher.Constraint("Equal", 49, 59))
sketch1.addConstraint(Sketcher.Constraint("Equal", 58, 60))
sketch1.addConstraint(Sketcher.Constraint("Symmetric", 0, 3, 8, 3, -1, 1))
sketch1.addConstraint(Sketcher.Constraint("Symmetric", 1, 3, 9, 3, -1, 1))
sketch1.addConstraint(Sketcher.Constraint("Symmetric", 2, 3, 10, 3, -1, 1))
sketch1.addConstraint(Sketcher.Constraint("Symmetric", 4, 3, 12, 3, -1, 1))
sketch1.addConstraint(Sketcher.Constraint("Symmetric", 5, 3, 13, 3, -1, 1))
sketch1.addConstraint(Sketcher.Constraint("Symmetric", 6, 3, 14, 3, -1, 1))
sketch1.addConstraint(Sketcher.Constraint("Symmetric", 7, 3, 15, 3, -1, 1))
sketch1.addConstraint(Sketcher.Constraint("Symmetric", 1, 3, 4, 3, -2))
sketch1.addConstraint(Sketcher.Constraint("Symmetric", 0, 3, 5, 3, -2))
sketch1.addConstraint(Sketcher.Constraint("Symmetric", 22, 2, 33, 2, -2))
sketch1.addConstraint(Sketcher.Constraint("PointOnObject", 2, 3, -2))
sketch1.addConstraint(Sketcher.Constraint("PointOnObject", 2, 2, -2))
sketch1.addConstraint(Sketcher.Constraint("PointOnObject", 6, 2, -1))
sketch1.addConstraint(Sketcher.Constraint("PointOnObject", 10, 2, -2))
sketch1.addConstraint(Sketcher.Constraint("PointOnObject", 46, 1, -2))
sketch1.addConstraint(Sketcher.Constraint("PointOnObject", 47, 1, -1))
sketch1.addConstraint(Sketcher.Constraint("PointOnObject", 48, 1, -2))
sketch1.addConstraint(Sketcher.Constraint("PointOnObject", 49, 1, -1))
sketch1.addConstraint(Sketcher.Constraint("Horizontal", 30, 3, 17, 1))
sketch1.addConstraint(Sketcher.Constraint("Horizontal", 16, 1, 26, 1))
sketch1.addConstraint(Sketcher.Constraint("Horizontal", 17, 1, 27, 1))
sketch1.addConstraint(Sketcher.Constraint("Horizontal", 61, 3, 45, 1))
sketch1.addConstraint(Sketcher.Constraint("Horizontal", 41, 2, 50, 2))
sketch1.addConstraint(Sketcher.Constraint("Horizontal", 44, 1, 60, 1))
sketch1.addConstraint(Sketcher.Constraint("Horizontal", 45, 1, 61, 1))
sketch1.addConstraint(Sketcher.Constraint("Vertical", 23, 2, 40, 2))
sketch1.addConstraint(Sketcher.Constraint("Vertical", 16, 1, 44, 1))
sketch1.addConstraint(Sketcher.Constraint("Diameter", 25, 22.0))
sketch1.addConstraint(Sketcher.Constraint("Radius", 0, 7.0))
sketch1.addConstraint(Sketcher.Constraint("Radius", 2, 15.0))
sketch1.addConstraint(Sketcher.Constraint("Diameter", 18, 9.2))
sketch1.addConstraint(Sketcher.Constraint("DistanceY", -1, 1, 2, 3, 28.0))
sketch1.addConstraint(Sketcher.Constraint("DistanceY", 16, 1, -1, 1, 22.002298))
sketch1.addConstraint(Sketcher.Constraint("DistanceX", 23, 1, 23, 2, 6.330235))
sketch1.addConstraint(Sketcher.Constraint("DistanceX", -1, 1, 0, 3, 25.479778))
sketch1.addConstraint(Sketcher.Constraint("DistanceY", -1, 1, 0, 3, 11.613622))
sketch1.addConstraint(Sketcher.Constraint("DistanceY", -1, 1, 1, 3, 21.131868))
sketch1.addConstraint(Sketcher.Constraint("DistanceX", 6, 3, -1, 1, 28.000531))
sketch1.addConstraint(Sketcher.Constraint("DistanceY", -1, 1, 6, 3, 0.004758))
sketch1.addConstraint(Sketcher.Constraint("DistanceX", -1, 1, 0, 2, 24.89139))
pad1 = body.newObject("PartDesign::Pad", "Pad")
pad1.Profile = sketch1
pad1.Length = 6

doc.recompute()
